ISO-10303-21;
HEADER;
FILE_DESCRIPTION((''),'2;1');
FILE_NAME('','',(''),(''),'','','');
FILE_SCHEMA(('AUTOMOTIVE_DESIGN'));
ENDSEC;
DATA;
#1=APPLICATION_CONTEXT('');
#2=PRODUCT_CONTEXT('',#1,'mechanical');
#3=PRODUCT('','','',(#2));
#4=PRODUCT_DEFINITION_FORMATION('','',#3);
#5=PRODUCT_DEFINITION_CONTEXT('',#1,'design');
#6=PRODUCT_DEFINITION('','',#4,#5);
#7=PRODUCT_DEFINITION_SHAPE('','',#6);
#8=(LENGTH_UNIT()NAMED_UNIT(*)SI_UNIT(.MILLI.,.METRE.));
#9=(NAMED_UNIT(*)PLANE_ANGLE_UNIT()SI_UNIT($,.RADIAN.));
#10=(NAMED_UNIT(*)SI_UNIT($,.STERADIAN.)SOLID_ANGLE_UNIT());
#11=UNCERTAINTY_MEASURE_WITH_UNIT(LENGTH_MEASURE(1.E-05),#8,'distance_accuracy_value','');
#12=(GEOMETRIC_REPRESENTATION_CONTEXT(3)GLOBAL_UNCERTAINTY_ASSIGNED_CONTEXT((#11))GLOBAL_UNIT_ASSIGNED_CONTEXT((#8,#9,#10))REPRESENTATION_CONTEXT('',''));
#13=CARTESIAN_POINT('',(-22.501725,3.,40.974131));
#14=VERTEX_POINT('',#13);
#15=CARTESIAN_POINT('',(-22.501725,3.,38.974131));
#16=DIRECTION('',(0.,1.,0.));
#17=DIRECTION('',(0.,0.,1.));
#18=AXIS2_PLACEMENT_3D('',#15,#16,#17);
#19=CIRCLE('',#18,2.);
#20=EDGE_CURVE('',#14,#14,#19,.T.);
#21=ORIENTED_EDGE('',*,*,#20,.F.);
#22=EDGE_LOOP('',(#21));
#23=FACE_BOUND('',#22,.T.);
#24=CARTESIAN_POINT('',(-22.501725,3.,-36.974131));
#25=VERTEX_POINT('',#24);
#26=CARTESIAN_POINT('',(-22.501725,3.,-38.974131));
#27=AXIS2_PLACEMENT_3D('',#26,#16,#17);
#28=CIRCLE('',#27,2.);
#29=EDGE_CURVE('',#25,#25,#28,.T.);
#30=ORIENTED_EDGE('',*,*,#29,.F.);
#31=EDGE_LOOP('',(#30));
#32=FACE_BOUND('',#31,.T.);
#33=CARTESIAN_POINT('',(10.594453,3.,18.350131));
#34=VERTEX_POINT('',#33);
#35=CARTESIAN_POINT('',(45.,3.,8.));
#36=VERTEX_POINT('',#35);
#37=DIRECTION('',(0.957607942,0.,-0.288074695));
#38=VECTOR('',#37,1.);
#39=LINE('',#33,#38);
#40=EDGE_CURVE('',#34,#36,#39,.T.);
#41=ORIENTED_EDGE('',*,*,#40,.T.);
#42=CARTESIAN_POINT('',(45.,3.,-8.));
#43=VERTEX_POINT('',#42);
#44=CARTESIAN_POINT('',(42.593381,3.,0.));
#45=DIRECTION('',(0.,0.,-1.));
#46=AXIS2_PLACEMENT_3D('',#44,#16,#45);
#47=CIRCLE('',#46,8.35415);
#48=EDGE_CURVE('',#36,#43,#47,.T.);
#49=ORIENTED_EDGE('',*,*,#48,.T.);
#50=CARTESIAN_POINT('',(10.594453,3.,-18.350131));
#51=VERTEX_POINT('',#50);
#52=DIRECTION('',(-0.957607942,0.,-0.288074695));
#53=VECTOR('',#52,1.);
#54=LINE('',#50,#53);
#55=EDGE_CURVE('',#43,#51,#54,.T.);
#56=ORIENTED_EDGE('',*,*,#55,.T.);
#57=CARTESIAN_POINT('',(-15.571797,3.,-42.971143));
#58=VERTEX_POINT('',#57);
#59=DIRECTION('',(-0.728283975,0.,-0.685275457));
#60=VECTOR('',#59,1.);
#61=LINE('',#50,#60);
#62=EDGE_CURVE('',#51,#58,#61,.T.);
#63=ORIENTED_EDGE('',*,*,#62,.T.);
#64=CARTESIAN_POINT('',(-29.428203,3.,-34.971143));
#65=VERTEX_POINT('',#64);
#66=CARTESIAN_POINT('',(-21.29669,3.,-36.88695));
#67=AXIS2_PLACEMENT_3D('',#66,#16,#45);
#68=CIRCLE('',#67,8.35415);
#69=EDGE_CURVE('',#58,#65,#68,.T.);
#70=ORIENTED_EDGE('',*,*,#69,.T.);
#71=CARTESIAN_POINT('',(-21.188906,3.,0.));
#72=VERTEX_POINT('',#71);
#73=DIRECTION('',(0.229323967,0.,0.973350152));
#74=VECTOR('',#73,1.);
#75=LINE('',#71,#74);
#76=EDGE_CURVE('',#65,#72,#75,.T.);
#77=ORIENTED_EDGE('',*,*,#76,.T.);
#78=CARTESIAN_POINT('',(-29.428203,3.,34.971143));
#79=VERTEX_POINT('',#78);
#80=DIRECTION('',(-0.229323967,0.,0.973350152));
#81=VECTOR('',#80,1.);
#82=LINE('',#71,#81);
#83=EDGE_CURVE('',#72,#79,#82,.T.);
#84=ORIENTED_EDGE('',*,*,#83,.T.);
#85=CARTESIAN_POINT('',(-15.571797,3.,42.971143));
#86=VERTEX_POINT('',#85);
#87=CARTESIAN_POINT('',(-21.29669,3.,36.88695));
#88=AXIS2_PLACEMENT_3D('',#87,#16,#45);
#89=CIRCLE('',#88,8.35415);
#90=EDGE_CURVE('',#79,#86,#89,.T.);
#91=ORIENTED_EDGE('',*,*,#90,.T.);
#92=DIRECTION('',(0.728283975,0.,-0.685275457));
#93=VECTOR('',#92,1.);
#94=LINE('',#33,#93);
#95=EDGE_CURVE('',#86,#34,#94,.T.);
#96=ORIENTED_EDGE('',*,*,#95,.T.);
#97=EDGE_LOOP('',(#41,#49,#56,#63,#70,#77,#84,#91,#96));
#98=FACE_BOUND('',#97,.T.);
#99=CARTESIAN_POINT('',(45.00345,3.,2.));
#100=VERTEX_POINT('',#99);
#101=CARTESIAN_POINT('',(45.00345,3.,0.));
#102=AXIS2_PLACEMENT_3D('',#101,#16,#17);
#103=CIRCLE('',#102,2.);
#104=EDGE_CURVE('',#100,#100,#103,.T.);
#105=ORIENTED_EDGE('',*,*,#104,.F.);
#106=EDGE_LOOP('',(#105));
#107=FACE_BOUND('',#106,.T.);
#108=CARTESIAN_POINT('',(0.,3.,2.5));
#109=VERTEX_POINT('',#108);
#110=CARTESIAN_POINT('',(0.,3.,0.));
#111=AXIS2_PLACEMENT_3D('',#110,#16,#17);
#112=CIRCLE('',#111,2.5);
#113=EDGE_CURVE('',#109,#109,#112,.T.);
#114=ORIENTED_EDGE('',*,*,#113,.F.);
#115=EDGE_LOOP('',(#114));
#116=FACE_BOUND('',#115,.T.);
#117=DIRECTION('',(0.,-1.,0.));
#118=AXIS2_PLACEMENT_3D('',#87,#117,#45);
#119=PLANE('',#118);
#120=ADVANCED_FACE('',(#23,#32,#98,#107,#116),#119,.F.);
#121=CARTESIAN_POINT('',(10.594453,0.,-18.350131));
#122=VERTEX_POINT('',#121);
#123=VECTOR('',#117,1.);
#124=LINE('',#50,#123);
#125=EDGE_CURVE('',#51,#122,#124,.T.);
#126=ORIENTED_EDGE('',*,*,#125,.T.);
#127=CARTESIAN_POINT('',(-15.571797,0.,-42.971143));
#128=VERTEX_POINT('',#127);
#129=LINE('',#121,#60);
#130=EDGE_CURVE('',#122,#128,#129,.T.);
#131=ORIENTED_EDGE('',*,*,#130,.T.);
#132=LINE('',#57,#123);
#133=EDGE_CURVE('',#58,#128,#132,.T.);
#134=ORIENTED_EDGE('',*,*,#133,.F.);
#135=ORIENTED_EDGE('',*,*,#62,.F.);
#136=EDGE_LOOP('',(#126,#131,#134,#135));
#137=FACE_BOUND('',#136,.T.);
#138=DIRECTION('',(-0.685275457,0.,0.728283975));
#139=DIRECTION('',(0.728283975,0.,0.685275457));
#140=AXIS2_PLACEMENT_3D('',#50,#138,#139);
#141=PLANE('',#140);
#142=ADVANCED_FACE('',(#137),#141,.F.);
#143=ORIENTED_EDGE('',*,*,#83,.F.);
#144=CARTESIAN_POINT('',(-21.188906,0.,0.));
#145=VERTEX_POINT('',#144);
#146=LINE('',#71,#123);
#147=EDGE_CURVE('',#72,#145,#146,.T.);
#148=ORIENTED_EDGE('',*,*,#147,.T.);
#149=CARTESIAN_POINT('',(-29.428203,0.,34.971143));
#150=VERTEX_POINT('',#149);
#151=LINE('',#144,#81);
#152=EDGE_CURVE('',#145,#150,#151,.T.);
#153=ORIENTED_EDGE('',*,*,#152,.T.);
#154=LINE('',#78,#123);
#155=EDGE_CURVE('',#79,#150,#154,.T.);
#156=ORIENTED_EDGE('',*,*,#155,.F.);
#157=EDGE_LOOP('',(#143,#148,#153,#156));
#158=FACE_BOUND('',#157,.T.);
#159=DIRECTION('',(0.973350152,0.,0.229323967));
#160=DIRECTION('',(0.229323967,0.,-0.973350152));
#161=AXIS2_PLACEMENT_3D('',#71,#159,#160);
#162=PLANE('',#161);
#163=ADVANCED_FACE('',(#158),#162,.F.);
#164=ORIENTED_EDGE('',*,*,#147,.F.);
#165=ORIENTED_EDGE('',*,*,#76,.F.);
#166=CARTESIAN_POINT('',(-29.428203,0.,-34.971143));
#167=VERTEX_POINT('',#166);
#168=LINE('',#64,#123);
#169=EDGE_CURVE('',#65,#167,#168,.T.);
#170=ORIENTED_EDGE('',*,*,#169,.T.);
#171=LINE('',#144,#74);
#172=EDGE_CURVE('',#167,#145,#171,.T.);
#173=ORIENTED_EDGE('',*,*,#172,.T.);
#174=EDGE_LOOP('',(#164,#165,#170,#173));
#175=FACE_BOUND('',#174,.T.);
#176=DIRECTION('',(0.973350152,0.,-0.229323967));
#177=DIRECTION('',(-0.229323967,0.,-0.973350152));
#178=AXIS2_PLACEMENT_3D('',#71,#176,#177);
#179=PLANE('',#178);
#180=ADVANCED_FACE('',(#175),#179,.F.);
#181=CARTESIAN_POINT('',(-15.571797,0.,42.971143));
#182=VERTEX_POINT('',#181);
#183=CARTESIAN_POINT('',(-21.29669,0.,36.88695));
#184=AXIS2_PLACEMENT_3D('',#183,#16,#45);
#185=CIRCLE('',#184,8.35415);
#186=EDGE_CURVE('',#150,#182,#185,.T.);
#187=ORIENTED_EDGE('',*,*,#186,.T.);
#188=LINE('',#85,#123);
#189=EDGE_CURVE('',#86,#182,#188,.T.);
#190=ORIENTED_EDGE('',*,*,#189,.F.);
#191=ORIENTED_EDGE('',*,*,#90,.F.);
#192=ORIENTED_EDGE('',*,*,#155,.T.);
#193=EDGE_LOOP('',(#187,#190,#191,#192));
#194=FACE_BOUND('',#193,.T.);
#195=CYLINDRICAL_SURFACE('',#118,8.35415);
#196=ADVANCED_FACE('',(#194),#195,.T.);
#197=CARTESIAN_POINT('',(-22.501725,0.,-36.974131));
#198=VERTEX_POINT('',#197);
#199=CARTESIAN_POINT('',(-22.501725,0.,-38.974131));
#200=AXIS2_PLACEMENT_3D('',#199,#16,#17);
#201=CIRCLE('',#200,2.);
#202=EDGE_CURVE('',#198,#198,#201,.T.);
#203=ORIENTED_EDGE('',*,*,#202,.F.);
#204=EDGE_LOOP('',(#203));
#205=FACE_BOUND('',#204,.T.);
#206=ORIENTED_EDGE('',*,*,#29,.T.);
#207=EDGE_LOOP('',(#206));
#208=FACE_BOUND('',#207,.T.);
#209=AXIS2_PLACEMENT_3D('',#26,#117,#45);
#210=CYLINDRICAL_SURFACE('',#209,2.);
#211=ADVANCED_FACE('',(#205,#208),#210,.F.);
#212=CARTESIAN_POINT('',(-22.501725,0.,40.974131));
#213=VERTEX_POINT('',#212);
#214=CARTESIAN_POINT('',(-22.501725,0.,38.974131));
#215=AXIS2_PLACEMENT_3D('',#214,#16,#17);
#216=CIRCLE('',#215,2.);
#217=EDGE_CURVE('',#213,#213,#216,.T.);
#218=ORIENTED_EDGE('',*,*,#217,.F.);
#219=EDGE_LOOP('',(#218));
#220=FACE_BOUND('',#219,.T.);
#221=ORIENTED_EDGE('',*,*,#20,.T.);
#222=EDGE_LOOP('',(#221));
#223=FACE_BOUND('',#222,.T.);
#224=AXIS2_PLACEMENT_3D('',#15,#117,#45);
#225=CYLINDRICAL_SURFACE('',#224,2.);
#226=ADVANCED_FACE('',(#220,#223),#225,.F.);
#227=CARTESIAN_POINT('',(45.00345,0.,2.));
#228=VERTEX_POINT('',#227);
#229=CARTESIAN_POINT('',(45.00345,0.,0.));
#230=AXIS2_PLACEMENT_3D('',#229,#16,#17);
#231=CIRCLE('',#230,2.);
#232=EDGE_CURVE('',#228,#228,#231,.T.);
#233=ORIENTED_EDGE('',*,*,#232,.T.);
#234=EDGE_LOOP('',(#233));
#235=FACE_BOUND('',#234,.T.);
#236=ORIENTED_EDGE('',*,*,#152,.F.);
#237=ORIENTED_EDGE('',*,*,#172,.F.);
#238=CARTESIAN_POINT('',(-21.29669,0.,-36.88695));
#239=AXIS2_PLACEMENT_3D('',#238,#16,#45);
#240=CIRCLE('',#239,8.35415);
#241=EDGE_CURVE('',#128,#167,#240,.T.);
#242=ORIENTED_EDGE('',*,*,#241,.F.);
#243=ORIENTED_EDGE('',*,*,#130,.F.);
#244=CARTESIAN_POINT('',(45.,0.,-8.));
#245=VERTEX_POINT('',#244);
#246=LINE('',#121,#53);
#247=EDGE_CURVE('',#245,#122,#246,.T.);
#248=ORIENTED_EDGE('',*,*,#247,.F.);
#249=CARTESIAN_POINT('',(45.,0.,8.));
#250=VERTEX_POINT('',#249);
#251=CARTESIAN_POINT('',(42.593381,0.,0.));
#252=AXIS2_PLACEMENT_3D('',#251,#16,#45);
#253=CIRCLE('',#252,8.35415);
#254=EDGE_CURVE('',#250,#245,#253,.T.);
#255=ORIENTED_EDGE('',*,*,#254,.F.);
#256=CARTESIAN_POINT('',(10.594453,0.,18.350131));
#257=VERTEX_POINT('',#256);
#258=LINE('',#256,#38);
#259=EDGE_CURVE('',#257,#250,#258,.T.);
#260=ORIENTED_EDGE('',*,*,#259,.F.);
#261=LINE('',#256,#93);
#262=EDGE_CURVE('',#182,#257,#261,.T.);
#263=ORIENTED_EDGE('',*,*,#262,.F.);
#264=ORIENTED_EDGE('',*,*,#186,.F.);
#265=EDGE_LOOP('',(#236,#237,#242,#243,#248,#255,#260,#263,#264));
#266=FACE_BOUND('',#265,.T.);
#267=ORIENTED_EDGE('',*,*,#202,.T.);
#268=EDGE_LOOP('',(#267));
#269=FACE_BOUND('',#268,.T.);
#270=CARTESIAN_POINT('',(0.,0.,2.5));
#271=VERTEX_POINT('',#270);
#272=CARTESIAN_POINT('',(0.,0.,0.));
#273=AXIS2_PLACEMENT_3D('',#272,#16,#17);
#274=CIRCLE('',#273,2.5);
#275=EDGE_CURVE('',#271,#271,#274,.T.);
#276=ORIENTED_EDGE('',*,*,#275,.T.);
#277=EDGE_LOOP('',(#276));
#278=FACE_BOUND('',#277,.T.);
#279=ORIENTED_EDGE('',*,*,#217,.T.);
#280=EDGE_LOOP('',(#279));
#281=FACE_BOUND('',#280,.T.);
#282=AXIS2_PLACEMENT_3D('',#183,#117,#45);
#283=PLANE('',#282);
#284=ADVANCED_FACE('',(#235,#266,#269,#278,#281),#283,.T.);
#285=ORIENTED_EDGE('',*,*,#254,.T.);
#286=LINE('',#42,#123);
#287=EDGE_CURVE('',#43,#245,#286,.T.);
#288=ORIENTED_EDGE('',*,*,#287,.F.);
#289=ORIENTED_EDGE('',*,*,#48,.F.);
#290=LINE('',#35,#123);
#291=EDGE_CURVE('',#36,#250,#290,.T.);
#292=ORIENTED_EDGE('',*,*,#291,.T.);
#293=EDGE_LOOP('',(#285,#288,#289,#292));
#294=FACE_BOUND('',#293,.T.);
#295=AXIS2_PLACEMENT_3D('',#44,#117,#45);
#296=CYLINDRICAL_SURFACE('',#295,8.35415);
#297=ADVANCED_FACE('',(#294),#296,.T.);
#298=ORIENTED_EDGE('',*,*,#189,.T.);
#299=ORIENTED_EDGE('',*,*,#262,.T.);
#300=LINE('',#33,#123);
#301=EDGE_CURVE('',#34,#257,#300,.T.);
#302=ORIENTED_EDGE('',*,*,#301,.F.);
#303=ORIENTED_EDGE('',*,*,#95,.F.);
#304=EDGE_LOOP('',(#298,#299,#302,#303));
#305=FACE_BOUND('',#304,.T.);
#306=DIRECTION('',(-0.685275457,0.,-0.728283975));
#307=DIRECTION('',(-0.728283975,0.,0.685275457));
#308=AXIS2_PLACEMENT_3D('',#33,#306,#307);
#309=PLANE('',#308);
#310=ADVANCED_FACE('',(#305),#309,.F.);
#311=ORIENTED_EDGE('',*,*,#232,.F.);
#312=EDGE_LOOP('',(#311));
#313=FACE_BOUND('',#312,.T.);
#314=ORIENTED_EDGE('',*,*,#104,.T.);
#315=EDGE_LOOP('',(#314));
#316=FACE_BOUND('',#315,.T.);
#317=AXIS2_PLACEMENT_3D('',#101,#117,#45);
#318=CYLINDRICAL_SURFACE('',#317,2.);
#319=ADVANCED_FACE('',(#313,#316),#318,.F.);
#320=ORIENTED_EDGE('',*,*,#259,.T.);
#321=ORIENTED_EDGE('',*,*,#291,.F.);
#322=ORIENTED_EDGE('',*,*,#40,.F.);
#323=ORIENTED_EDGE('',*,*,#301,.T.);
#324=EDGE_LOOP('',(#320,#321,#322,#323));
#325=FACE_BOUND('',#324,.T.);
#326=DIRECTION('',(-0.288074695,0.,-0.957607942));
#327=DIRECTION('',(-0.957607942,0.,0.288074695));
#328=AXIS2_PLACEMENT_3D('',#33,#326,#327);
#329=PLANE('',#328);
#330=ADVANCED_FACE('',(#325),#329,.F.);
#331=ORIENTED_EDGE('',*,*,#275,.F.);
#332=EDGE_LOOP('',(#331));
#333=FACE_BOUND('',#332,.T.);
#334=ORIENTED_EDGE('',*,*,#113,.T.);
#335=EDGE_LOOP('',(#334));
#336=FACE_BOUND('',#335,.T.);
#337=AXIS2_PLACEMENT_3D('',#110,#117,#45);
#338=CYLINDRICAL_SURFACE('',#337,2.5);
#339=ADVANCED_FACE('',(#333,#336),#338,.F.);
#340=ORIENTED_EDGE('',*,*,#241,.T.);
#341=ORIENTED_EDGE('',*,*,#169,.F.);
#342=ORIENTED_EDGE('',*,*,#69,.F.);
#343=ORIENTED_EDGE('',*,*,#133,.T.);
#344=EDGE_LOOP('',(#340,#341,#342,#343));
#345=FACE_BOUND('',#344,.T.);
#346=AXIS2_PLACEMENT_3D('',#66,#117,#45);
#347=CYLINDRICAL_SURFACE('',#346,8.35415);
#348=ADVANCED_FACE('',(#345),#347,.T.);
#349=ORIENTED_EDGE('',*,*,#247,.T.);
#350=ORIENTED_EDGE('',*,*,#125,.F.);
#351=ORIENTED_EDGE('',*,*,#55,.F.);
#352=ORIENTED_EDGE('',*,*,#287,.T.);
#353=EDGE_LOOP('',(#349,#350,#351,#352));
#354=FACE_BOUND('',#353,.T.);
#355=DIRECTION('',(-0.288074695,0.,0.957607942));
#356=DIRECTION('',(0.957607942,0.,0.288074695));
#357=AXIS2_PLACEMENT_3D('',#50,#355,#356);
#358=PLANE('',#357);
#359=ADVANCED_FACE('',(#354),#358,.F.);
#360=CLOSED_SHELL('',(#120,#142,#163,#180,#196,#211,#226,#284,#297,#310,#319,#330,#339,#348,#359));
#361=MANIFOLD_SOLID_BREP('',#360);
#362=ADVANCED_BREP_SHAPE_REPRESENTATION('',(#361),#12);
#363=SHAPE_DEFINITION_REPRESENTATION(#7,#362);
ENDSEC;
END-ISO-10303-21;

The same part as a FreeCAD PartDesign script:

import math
import FreeCAD as App
import Part
import Sketcher

V = App.Vector

doc = App.newDocument("Part")
body = doc.addObject("PartDesign::Body", "Body")

sketch1 = body.newObject("Sketcher::SketchObject", "Sketch")
sketch1.AttachmentSupport = (doc.getObject("XZ_Plane"), [""])
sketch1.MapMode = "FlatFace"
sketch1.addGeometry([
    Part.LineSegment(V(10.594453, 18.350131, 0), V(45, 8, 0)),
    Part.ArcOfCircle(Part.Circle(V(42.593381, 0, 0), V(0, 0, 1), 8.35415), math.radians(-73.257274), math.radians(73.257274)),
    Part.LineSegment(V(45, -8, 0), V(10.594453, -18.350131, 0)),
    Part.LineSegment(V(10.594453, -18.350131, 0), V(-15.571797, -42.971143, 0)),
    Part.ArcOfCircle(Part.Circle(V(-21.29669, -36.88695, 0), V(0, 0, 1), 8.35415), math.radians(166.742726), math.radians(313.257274)),
    Part.LineSegment(V(-29.428203, -34.971143, 0), V(-21.188906, 0, 0)),
    Part.LineSegment(V(-21.188906, 0, 0), V(-29.428203, 34.971143, 0)),
    Part.ArcOfCircle(Part.Circle(V(-21.29669, 36.88695, 0), V(0, 0, 1), 8.35415), math.radians(46.742726), math.radians(193.257274)),
    Part.LineSegment(V(-15.571797, 42.971143, 0), V(10.594453, 18.350131, 0)),
    Part.Circle(V(-22.501725, 38.974131, 0), V(0, 0, 1), 2),
    Part.Circle(V(0, 0, 0), V(0, 0, 1), 2.5),
    Part.Circle(V(-22.501725, -38.974131, 0), V(0, 0, 1), 2),
    Part.Circle(V(45.00345, 0, 0), V(0, 0, 1), 2),
], False)
sketch1.addConstraint([
    Sketcher.Constraint("Tangent", 0, 2, 1, 2),
    Sketcher.Constraint("Tangent", 1, 1, 2, 1),
    Sketcher.Constraint("Coincident", 2, 2, 3, 1),
    Sketcher.Constraint("Tangent", 3, 2, 4, 2),
    Sketcher.Constraint("Tangent", 4, 1, 5, 1),
    Sketcher.Constraint("Coincident", 5, 2, 6, 1),
    Sketcher.Constraint("Tangent", 6, 2, 7, 2),
    Sketcher.Constraint("Tangent", 7, 1, 8, 1),
    Sketcher.Constraint("Coincident", 8, 2, 0, 1),
    Sketcher.Constraint("Coincident", 10, 3, -1, 1),
    Sketcher.Constraint("Equal", 1, 4),
    Sketcher.Constraint("Equal", 4, 7),
    Sketcher.Constraint("Equal", 9, 11),
    Sketcher.Constraint("Equal", 11, 12),
    Sketcher.Constraint("Symmetric", 4, 3, 7, 3, -1),
    Sketcher.Constraint("Symmetric", 9, 3, 11, 3, -1),
    Sketcher.Constraint("Symmetric", 0, 2, 1, 1, -1),
    Sketcher.Constraint("PointOnObject", 12, 3, -1),
    Sketcher.Constraint("PointOnObject", 5, 2, -1),
    Sketcher.Constraint("Vertical", 3, 2, 7, 1),
    Sketcher.Constraint("Equal", 2, 3),
    Sketcher.Constraint("Equal", 3, 5),
    Sketcher.Constraint("Diameter", 9, 4.0),
    Sketcher.Constraint("Diameter", 10, 5.0),
    Sketcher.Constraint("DistanceX", -1, 1, 0, 2, 45.0),
    Sketcher.Constraint("DistanceY", -1, 1, 0, 2, 8.0),
    Sketcher.Constraint("DistanceY", 3, 2, 4, 1, 8.0),
    Sketcher.Constraint("Radius", 1, 8.35415),
    Sketcher.Constraint("DistanceY", 4, 3, 7, 3, 73.7739),
    Sketcher.Constraint("DistanceY", -1, 1, 9, 3, 38.974131),
    Sketcher.Constraint("DistanceX", -1, 1, 12, 3, 45.00345),
    Sketcher.Constraint("DistanceX", 11, 3, 3, 2, 6.929928),
])
pad1 = body.newObject("PartDesign::Pad", "Pad")
pad1.Profile = sketch1
pad1.Length = 3
pad1.Reversed = True

doc.recompute()
